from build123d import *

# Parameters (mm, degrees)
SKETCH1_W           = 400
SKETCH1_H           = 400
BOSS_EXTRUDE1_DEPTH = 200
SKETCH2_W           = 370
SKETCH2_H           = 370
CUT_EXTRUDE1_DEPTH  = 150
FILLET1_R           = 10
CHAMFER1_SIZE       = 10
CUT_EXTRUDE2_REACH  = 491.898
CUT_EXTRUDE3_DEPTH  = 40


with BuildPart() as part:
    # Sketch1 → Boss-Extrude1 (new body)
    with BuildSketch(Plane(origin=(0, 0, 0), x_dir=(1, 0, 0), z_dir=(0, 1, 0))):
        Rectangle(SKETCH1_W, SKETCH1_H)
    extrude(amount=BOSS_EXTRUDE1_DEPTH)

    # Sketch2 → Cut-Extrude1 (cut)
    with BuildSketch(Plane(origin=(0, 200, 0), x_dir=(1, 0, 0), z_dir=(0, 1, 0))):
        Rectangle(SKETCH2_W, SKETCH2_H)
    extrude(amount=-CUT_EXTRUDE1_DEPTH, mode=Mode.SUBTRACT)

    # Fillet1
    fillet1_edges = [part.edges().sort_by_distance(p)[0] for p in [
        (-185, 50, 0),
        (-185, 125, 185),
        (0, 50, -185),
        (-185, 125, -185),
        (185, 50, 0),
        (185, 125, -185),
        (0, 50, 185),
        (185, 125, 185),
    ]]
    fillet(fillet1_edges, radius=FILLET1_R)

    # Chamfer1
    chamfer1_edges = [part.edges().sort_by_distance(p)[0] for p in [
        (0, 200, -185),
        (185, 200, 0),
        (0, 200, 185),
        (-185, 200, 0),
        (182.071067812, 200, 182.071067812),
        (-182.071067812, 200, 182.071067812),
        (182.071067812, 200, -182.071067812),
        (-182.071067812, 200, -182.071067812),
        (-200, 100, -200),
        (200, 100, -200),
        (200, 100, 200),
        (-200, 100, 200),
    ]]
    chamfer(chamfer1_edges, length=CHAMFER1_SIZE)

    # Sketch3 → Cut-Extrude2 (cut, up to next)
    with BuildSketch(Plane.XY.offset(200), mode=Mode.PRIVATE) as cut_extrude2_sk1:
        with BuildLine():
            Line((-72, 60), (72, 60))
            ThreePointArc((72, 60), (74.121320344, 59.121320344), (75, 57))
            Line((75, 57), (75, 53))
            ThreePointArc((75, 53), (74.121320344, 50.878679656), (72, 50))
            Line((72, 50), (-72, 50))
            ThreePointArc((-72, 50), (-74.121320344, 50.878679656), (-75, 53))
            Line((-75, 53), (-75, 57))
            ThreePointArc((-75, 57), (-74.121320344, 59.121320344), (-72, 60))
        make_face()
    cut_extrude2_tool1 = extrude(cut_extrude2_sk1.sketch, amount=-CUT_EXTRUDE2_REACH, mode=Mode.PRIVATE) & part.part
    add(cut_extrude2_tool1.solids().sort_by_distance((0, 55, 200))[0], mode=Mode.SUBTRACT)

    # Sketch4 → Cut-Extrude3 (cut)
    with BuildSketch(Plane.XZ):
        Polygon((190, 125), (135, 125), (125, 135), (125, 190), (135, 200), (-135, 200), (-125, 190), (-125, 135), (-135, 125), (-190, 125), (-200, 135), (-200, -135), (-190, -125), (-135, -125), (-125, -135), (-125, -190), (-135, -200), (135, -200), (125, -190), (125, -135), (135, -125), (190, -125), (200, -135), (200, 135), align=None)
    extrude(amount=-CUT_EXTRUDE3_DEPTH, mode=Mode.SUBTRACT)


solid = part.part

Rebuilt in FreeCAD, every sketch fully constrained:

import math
import FreeCAD as App
import Part
import Sketcher
from FreeCAD import Vector
Q = App.Units.Quantity


def edges_at(feature, points):
    """Names of the edges that pass closest to the given points."""
    edges = feature.Shape.Edges
    near = lambda p: min(range(len(edges)), key=lambda i: edges[i].distToShape(Part.Vertex(*p))[0])
    return sorted({f"Edge{near(p) + 1}" for p in points})


def add_polygon(sketch, points):
    """Adds a closed chain of lines whose ends are joined by coincident constraints."""
    first, n = sketch.GeometryCount, len(points)
    for a, b in zip(points, points[1:] + points[:1]):
        sketch.addGeometry(Part.LineSegment(App.Vector(*a, 0), App.Vector(*b, 0)), False)
    for i in range(n):
        sketch.addConstraint(Sketcher.Constraint("Coincident", first + i, 2, first + (i + 1) % n, 1))

doc = App.newDocument("Part")
params = doc.addObject("Spreadsheet::Sheet", "Params")
for row, (alias, value) in enumerate([
    ("sketch1_width", "400 mm"),
    ("pad1_length", "200 mm"),
    ("sketch2_width", "370 mm"),
    ("pocket1_length", "150 mm"),
    ("fillet_radius", "10 mm"),
    ("chamfer_size", "10 mm"),
    ("sketch3_radius", "3 mm"),
    ("sketch3_width", "144 mm"),
    ("sketch3_height", "4 mm"),
    ("sketch4_width", "55 mm"),
    ("sketch4_width2", "270 mm"),
    ("pocket3_length", "40 mm"),
], start=1):
    params.set(f"A{row}", alias)
    params.set(f"B{row}", "=" + value)
    params.setAlias(f"B{row}", alias)

body = doc.addObject("PartDesign::Body", "Body")

sketch1 = body.newObject("Sketcher::SketchObject", "Sketch")
sketch1.AttachmentSupport = (doc.getObject("XZ_Plane"), [""])
sketch1.MapMode = "FlatFace"
add_polygon(sketch1, [(-200, -200), (-200, 200), (200, 200), (200, -200)])
sketch1.addConstraint([
    Sketcher.Constraint("Vertical", 0),
    Sketcher.Constraint("Horizontal", 1),
    Sketcher.Constraint("Vertical", 2),
    Sketcher.Constraint("Horizontal", 3),
    Sketcher.Constraint("Symmetric", 0, 2, 2, 2, -1, 1),
    Sketcher.Constraint("Equal", 3, 0),
    Sketcher.Constraint("DistanceX", 1, 1, 1, 2, Q("400 mm")),
])
sketch1.setExpression("Constraints[10]", "Params.sketch1_width")
pad1 = body.newObject("PartDesign::Pad", "Pad")
pad1.Profile = sketch1
pad1.setExpression("Length", "Params.pad1_length")
pad1.Reversed = True

sketch2 = body.newObject("Sketcher::SketchObject", "Sketch001")
sketch2.AttachmentSupport = (doc.getObject("XZ_Plane"), [""])
sketch2.MapMode = "FlatFace"
sketch2.AttachmentOffset = App.Placement(Vector(0, 0, -200), App.Rotation())
add_polygon(sketch2, [(-185, -185), (-185, 185), (185, 185), (185, -185)])
sketch2.addConstraint([
    Sketcher.Constraint("Vertical", 0),
    Sketcher.Constraint("Horizontal", 1),
    Sketcher.Constraint("Vertical", 2),
    Sketcher.Constraint("Horizontal", 3),
    Sketcher.Constraint("Symmetric", 0, 2, 2, 2, -1, 1),
    Sketcher.Constraint("Equal", 3, 0),
    Sketcher.Constraint("DistanceX", 1, 1, 1, 2, Q("370 mm")),
])
sketch2.setExpression("Constraints[10]", "Params.sketch2_width")
pocket1 = body.newObject("PartDesign::Pocket", "Pocket")
pocket1.Profile = sketch2
pocket1.setExpression("Length", "Params.pocket1_length")
pocket1.Reversed = True
doc.recompute()

fillet = body.newObject("PartDesign::Fillet", "Fillet")
fillet.Base = (pocket1, edges_at(pocket1, [
    (-185, 50, 0),
    (-185, 125, 185),
    (0, 50, -185),
    (-185, 125, -185),
    (185, 50, 0),
    (185, 125, -185),
    (0, 50, 185),
    (185, 125, 185),
]))
fillet.setExpression("Radius", "Params.fillet_radius")
doc.recompute()

chamfer = body.newObject("PartDesign::Chamfer", "Chamfer")
chamfer.Base = (fillet, edges_at(fillet, [
    (0, 200, -185),
    (185, 200, 0),
    (0, 200, 185),
    (-185, 200, 0),
    (182.071, 200, 182.071),
    (-182.071, 200, 182.071),
    (182.071, 200, -182.071),
    (-182.071, 200, -182.071),
    (-200, 100, -200),
    (200, 100, -200),
    (200, 100, 200),
    (-200, 100, 200),
]))
chamfer.setExpression("Size", "Params.chamfer_size")

sketch3 = body.newObject("Sketcher::SketchObject", "Sketch002")
sketch3.AttachmentSupport = (doc.getObject("XY_Plane"), [""])
sketch3.MapMode = "FlatFace"
sketch3.AttachmentOffset = App.Placement(Vector(0, 0, 200), App.Rotation())
sketch3.addGeometry([
    Part.LineSegment(Vector(72, 60, 0), Vector(-72, 60, 0)),
    Part.ArcOfCircle(Part.Circle(Vector(-72, 57, 0), Vector(0, 0, 1), 3), math.radians(90), math.radians(180)),
    Part.LineSegment(Vector(-75, 57, 0), Vector(-75, 53, 0)),
    Part.ArcOfCircle(Part.Circle(Vector(-72, 53, 0), Vector(0, 0, 1), 3), math.radians(180), math.radians(270)),
    Part.LineSegment(Vector(-72, 50, 0), Vector(72, 50, 0)),
    Part.ArcOfCircle(Part.Circle(Vector(72, 53, 0), Vector(0, 0, 1), 3), math.radians(-90), math.radians(0)),
    Part.LineSegment(Vector(75, 53, 0), Vector(75, 57, 0)),
    Part.ArcOfCircle(Part.Circle(Vector(72, 57, 0), Vector(0, 0, 1), 3), math.radians(0), math.radians(90)),
], False)
sketch3.addConstraint([
    Sketcher.Constraint("Tangent", 0, 2, 1, 1),
    Sketcher.Constraint("Tangent", 1, 2, 2, 1),
    Sketcher.Constraint("Tangent", 2, 2, 3, 1),
    Sketcher.Constraint("Tangent", 3, 2, 4, 1),
    Sketcher.Constraint("Tangent", 4, 2, 5, 1),
    Sketcher.Constraint("Tangent", 5, 2, 6, 1),
    Sketcher.Constraint("Tangent", 6, 2, 7, 1),
    Sketcher.Constraint("Tangent", 7, 2, 0, 1),
    Sketcher.Constraint("Horizontal", 0),
    Sketcher.Constraint("Vertical", 2),
    Sketcher.Constraint("Horizontal", 4),
    Sketcher.Constraint("Vertical", 6),
    Sketcher.Constraint("Equal", 1, 3),
    Sketcher.Constraint("Equal", 3, 5),
    Sketcher.Constraint("Equal", 5, 7),
    Sketcher.Constraint("Radius", 1, Q("3 mm")),
    Sketcher.Constraint("DistanceX", 0, 2, 0, 1, Q("144 mm")),
    Sketcher.Constraint("DistanceY", 2, 2, 2, 1, Q("4 mm")),
    Sketcher.Constraint("DistanceX", 1, 3, -1, 1, Q("72 mm")),
    Sketcher.Constraint("DistanceY", -1, 1, 1, 3, Q("57 mm")),
])
sketch3.setExpression("Constraints[15]", "Params.sketch3_radius")
sketch3.setExpression("Constraints[16]", "Params.sketch3_width")
sketch3.setExpression("Constraints[17]", "Params.sketch3_height")
pocket2 = body.newObject("PartDesign::Pocket", "Pocket001")
pocket2.Profile = sketch3
pocket2.Type = "UpToFirst"

sketch4 = body.newObject("Sketcher::SketchObject", "Sketch003")
sketch4.AttachmentSupport = (doc.getObject("XZ_Plane"), [""])
sketch4.MapMode = "FlatFace"
add_polygon(sketch4, [(190, 125), (135, 125), (125, 135), (125, 190), (135, 200), (-135, 200), (-125, 190), (-125, 135), (-135, 125), (-190, 125), (-200, 135), (-200, -135), (-190, -125), (-135, -125), (-125, -135), (-125, -190), (-135, -200), (135, -200), (125, -190), (125, -135), (135, -125), (190, -125), (200, -135), (200, 135)])
sketch4.addConstraint([
    Sketcher.Constraint("Horizontal", 0),
    Sketcher.Constraint("Vertical", 2),
    Sketcher.Constraint("Horizontal", 4),
    Sketcher.Constraint("Vertical", 6),
    Sketcher.Constraint("Horizontal", 8),
    Sketcher.Constraint("Vertical", 10),
    Sketcher.Constraint("Horizontal", 12),
    Sketcher.Constraint("Vertical", 14),
    Sketcher.Constraint("Horizontal", 16),
    Sketcher.Constraint("Vertical", 18),
    Sketcher.Constraint("Horizontal", 20),
    Sketcher.Constraint("Vertical", 22),
    Sketcher.Constraint("Symmetric", 0, 2, 12, 2, -1, 1),
    Sketcher.Constraint("Symmetric", 1, 2, 13, 2, -1, 1),
    Sketcher.Constraint("Symmetric", 3, 2, 15, 2, -1, 1),
    Sketcher.Constraint("Symmetric", 5, 2, 17, 2, -1, 1),
    Sketcher.Constraint("Symmetric", 7, 2, 19, 2, -1, 1),
    Sketcher.Constraint("Symmetric", 9, 2, 21, 2, -1, 1),
    Sketcher.Constraint("Symmetric", 2, 2, 5, 2, -2),
    Sketcher.Constraint("Symmetric", 0, 2, 7, 2, -2),
    Sketcher.Constraint("Perpendicular", 1, 3),
    Sketcher.Constraint("Perpendicular", 3, 5),
    Sketcher.Constraint("Perpendicular", 5, 7),
    Sketcher.Constraint("Perpendicular", 7, 9),
    Sketcher.Constraint("Perpendicular", 9, 11),
    Sketcher.Constraint("Perpendicular", 13, 15),
    Sketcher.Constraint("Perpendicular", 15, 17),
    Sketcher.Constraint("Perpendicular", 17, 19),
    Sketcher.Constraint("Perpendicular", 19, 21),
    Sketcher.Constraint("Perpendicular", 21, 23),
    Sketcher.Constraint("Horizontal", 1, 2, 6, 2),
    Sketcher.Constraint("Horizontal", 6, 2, 9, 2),
    Sketcher.Constraint("Horizontal", 10, 2, 13, 2),
    Sketcher.Constraint("Horizontal", 9, 2, 22, 2),
    Sketcher.Constraint("Vertical", 0, 2, 3, 2),
    Sketcher.Constraint("Equal", 20, 2),
    Sketcher.Constraint("Equal", 16, 10),
    Sketcher.Constraint("DistanceX", 0, 2, 0, 1, Q("55 mm")),
    Sketcher.Constraint("DistanceX", 4, 2, 4, 1, Q("270 mm")),
    Sketcher.Constraint("DistanceY", -1, 1, 0, 2, Q("125 mm")),
])
sketch4.setExpression("Constraints[61]", "Params.sketch4_width")
sketch4.setExpression("Constraints[62]", "Params.sketch4_width2")
pocket3 = body.newObject("PartDesign::Pocket", "Pocket002")
pocket3.Profile = sketch4
pocket3.setExpression("Length", "Params.pocket3_length")

doc.recompute()
